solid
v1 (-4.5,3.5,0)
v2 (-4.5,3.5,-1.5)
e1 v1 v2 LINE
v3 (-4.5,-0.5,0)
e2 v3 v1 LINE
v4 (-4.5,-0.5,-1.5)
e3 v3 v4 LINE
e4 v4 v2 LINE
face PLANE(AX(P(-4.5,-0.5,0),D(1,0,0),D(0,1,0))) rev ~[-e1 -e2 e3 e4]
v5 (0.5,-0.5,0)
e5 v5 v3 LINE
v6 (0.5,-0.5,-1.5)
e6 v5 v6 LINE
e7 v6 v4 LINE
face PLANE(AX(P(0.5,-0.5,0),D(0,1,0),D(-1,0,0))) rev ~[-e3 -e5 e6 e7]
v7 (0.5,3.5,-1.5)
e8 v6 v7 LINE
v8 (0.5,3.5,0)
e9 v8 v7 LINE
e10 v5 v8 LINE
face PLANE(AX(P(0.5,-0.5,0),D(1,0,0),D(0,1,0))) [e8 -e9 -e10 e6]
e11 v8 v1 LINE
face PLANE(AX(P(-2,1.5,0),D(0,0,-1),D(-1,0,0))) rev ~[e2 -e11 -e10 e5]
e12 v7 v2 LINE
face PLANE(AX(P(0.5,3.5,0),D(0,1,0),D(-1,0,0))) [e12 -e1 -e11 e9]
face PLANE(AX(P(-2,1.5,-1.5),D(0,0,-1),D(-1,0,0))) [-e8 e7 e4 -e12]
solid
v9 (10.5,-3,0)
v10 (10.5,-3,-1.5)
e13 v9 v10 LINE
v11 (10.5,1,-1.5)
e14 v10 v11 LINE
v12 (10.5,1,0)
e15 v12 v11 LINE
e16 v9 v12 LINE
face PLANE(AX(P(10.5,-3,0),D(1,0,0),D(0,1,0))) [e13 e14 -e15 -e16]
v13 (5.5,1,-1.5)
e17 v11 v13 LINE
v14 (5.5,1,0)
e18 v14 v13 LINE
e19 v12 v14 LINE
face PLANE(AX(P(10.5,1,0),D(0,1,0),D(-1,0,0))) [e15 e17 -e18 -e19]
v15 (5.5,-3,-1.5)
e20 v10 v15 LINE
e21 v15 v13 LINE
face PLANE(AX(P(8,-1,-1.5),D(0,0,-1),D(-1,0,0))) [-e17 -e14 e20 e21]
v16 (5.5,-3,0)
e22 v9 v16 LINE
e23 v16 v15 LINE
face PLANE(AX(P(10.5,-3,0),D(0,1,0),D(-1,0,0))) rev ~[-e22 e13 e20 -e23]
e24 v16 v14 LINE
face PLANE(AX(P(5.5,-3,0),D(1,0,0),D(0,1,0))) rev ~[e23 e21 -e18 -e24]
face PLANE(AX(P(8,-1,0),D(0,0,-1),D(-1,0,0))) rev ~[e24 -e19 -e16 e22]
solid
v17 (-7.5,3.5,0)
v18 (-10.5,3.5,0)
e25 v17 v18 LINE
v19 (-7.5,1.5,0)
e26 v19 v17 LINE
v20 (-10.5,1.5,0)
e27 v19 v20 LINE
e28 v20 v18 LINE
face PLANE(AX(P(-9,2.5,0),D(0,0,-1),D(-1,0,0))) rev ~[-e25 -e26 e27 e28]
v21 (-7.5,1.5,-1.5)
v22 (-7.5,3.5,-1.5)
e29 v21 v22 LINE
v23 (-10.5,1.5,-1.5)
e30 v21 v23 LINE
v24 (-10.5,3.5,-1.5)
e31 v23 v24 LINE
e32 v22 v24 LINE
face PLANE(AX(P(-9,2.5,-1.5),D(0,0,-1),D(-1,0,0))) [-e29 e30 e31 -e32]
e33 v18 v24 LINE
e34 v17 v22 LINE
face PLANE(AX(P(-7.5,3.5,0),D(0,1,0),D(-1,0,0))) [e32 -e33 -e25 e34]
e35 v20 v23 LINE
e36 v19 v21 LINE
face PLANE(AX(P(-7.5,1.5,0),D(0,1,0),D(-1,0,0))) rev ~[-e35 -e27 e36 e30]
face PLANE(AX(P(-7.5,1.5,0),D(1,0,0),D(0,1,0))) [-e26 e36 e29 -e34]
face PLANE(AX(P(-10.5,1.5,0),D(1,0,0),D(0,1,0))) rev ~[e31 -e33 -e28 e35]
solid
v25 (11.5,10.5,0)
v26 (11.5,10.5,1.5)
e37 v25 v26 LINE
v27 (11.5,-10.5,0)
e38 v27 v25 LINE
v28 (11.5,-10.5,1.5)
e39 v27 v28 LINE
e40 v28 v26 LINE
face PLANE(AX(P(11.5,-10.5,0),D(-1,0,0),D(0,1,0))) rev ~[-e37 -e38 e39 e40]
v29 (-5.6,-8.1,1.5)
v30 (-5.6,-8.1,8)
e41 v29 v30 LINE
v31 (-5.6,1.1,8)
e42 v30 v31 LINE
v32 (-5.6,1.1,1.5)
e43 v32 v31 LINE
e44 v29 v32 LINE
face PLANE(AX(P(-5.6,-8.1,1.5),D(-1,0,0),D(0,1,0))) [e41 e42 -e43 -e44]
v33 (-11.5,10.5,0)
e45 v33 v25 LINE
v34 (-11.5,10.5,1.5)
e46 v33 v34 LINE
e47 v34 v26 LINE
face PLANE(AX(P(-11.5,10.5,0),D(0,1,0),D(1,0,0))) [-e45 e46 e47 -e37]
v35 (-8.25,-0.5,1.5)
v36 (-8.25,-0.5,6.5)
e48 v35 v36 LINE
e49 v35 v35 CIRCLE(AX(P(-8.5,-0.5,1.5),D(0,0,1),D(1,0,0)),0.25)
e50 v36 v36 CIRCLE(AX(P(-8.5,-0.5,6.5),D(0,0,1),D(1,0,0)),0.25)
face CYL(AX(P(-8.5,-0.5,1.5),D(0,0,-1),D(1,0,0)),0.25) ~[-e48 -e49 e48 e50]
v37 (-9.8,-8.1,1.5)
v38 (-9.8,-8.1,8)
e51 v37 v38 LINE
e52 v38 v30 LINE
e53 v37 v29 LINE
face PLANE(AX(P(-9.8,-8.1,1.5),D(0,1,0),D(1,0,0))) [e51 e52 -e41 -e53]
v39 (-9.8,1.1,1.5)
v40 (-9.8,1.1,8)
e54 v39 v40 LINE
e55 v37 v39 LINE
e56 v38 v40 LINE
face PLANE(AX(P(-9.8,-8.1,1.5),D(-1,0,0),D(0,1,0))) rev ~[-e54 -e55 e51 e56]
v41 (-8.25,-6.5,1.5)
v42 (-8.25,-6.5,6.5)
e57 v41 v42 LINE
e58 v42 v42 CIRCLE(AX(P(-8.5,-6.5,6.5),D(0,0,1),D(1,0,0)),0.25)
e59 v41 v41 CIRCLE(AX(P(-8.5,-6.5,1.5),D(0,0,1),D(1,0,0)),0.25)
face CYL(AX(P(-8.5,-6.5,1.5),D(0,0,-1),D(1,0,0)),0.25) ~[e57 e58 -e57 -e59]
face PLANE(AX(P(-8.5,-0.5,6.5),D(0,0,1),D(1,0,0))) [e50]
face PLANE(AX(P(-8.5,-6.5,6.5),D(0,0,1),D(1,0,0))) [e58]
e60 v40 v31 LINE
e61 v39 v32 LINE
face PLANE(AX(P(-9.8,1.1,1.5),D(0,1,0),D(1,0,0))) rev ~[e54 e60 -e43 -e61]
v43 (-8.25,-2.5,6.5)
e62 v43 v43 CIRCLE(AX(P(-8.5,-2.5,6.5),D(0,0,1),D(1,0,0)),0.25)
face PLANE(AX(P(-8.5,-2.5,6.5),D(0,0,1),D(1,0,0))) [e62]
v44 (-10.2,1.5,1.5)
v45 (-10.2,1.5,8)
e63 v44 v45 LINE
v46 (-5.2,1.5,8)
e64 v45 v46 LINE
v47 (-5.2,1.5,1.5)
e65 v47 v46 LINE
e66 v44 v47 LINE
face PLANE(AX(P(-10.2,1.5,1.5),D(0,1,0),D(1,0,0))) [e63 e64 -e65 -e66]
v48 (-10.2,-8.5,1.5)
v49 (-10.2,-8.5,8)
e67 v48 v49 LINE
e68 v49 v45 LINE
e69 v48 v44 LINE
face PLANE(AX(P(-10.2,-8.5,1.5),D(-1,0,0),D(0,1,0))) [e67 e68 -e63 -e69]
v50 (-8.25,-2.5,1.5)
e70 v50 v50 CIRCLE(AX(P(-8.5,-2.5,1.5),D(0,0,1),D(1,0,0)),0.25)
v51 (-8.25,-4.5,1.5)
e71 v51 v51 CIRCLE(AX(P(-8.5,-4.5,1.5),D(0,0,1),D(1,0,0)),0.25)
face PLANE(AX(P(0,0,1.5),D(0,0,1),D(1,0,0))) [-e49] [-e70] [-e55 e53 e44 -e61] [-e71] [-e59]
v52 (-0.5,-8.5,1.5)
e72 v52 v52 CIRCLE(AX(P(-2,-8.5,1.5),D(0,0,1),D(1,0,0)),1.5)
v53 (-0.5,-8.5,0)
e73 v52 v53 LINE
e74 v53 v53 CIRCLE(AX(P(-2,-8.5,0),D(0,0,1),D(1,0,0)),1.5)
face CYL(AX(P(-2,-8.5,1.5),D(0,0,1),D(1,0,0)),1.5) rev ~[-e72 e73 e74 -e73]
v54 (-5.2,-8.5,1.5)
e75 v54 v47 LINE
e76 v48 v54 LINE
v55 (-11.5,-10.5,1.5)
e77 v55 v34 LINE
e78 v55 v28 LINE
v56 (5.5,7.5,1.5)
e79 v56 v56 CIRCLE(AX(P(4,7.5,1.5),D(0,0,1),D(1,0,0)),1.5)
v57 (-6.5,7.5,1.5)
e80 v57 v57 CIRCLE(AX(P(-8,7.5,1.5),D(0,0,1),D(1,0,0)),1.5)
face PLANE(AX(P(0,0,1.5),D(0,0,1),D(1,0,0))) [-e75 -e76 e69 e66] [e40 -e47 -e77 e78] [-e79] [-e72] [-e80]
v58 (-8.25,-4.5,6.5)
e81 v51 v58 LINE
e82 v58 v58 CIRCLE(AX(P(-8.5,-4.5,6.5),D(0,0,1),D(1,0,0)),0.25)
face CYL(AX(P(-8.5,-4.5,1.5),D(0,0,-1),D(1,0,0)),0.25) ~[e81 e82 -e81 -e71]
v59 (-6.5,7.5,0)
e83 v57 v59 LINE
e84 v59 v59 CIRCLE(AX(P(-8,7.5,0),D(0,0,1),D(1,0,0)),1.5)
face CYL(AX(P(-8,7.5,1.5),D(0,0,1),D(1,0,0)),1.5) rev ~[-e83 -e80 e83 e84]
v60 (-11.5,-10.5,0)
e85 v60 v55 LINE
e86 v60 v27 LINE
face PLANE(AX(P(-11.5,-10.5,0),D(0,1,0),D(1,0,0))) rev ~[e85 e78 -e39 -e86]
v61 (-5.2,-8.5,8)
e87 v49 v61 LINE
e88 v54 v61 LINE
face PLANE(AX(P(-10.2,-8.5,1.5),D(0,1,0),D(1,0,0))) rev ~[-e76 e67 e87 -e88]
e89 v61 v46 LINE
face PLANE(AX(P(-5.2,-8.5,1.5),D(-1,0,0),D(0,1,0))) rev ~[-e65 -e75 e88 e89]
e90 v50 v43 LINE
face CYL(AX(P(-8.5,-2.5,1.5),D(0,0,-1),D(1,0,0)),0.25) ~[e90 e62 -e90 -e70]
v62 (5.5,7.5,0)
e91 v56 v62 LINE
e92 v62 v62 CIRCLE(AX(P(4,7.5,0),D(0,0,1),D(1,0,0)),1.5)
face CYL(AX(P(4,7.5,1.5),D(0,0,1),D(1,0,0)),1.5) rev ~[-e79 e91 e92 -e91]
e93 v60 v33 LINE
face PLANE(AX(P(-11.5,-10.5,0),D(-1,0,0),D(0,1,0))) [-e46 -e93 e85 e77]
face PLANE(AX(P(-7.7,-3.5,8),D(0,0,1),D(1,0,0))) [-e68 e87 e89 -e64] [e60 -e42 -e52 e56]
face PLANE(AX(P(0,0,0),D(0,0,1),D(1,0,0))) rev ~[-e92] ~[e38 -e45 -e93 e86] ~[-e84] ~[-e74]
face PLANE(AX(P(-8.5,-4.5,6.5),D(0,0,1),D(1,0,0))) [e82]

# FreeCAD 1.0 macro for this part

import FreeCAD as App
import Part
import Sketcher
from FreeCAD import Vector

doc = App.newDocument("Part")
params = doc.addObject("Spreadsheet::Sheet", "Params")
for row, (alias, value) in enumerate([
    ("sketch1_width", "23 mm"),
    ("sketch1_height", "21 mm"),
    ("pad1_length", "1.5 mm"),
    ("sketch2_diameter", "3 mm"),
    ("sketch3_diameter", "0.5 mm"),
    ("pad2_length", "5 mm"),
    ("sketch4_diameter", "0.5 mm"),
    ("pad3_length", "5 mm"),
    ("sketch5_diameter", "0.5 mm"),
    ("pad4_length", "5 mm"),
    ("sketch6_diameter", "0.5 mm"),
    ("pad5_length", "5 mm"),
    ("sketch7_width", "5 mm"),
    ("sketch7_height", "10 mm"),
    ("sketch7_width2", "4.2 mm"),
    ("sketch7_height2", "9.2 mm"),
    ("pad6_length", "6.5 mm"),
    ("sketch8_width", "5 mm"),
    ("sketch8_height", "4 mm"),
    ("pad7_length", "1.5 mm"),
    ("sketch9_width", "5 mm"),
    ("sketch9_height", "4 mm"),
    ("pad8_length", "1.5 mm"),
    ("sketch10_width", "3 mm"),
    ("sketch10_height", "2 mm"),
    ("pad9_length", "1.5 mm"),
], start=1):
    params.set(f"A{row}", alias)
    params.set(f"B{row}", "=" + value)
    params.setAlias(f"B{row}", alias)

body = doc.addObject("PartDesign::Body", "Body")

# Sketch on XY plane
sketch1 = body.newObject("Sketcher::SketchObject", "Sketch")
sketch1.AttachmentSupport = (doc.getObject("XY_Plane"), [""])
sketch1.MapMode = "FlatFace"
sketch1.addGeometry([
    Part.LineSegment(Vector(-11.5, 10.5, 0), Vector(-11.5, -10.5, 0)),
    Part.LineSegment(Vector(-11.5, -10.5, 0), Vector(11.5, -10.5, 0)),
    Part.LineSegment(Vector(11.5, -10.5, 0), Vector(11.5, 10.5, 0)),
    Part.LineSegment(Vector(11.5, 10.5, 0), Vector(-11.5, 10.5, 0)),
], False)
sketch1.addConstraint([
    Sketcher.Constraint("Coincident", 0, 2, 1, 1),
    Sketcher.Constraint("Coincident", 1, 2, 2, 1),
    Sketcher.Constraint("Coincident", 2, 2, 3, 1),
    Sketcher.Constraint("Coincident", 3, 2, 0, 1),
    Sketcher.Constraint("Vertical", 0),
    Sketcher.Constraint("Horizontal", 1),
    Sketcher.Constraint("Vertical", 2),
    Sketcher.Constraint("Horizontal", 3),
    Sketcher.Constraint("Symmetric", 0, 2, 2, 2, -1, 1),
    Sketcher.Constraint("DistanceX", 1, 1, 1, 2, 23.0),
    Sketcher.Constraint("DistanceY", 0, 2, 0, 1, 21.0),
])
sketch1.setExpression("Constraints[9]", "Params.sketch1_width")
sketch1.setExpression("Constraints[10]", "Params.sketch1_height")
pad1 = body.newObject("PartDesign::Pad", "Pad")
pad1.Profile = sketch1
pad1.setExpression("Length", "Params.pad1_length")

# Sketch on XY plane
sketch2 = body.newObject("Sketcher::SketchObject", "Sketch001")
sketch2.AttachmentSupport = (doc.getObject("XY_Plane"), [""])
sketch2.MapMode = "FlatFace"
sketch2.AttachmentOffset = App.Placement(Vector(0, 0, 1.5), App.Rotation())
sketch2.addGeometry([
    Part.Circle(Vector(-8, 7.5, 0), Vector(0, 0, 1), 1.5),
    Part.Circle(Vector(4, 7.5, 0), Vector(0, 0, 1), 1.5),
    Part.Circle(Vector(-2, -8.5, 0), Vector(0, 0, 1), 1.5),
], False)
sketch2.addConstraint([
    Sketcher.Constraint("Equal", 0, 1),
    Sketcher.Constraint("Equal", 1, 2),
    Sketcher.Constraint("Horizontal", 0, 3, 1, 3),
    Sketcher.Constraint("Diameter", 0, 3.0),
    Sketcher.Constraint("DistanceX", 0, 3, -1, 1, 8.0),
    Sketcher.Constraint("DistanceX", -1, 1, 1, 3, 4.0),
    Sketcher.Constraint("DistanceX", 2, 3, -1, 1, 2.0),
    Sketcher.Constraint("DistanceY", 2, 3, 0, 3, 16.0),
    Sketcher.Constraint("DistanceY", -1, 1, 0, 3, 7.5),
])
sketch2.setExpression("Constraints[3]", "Params.sketch2_diameter")
pocket1 = body.newObject("PartDesign::Pocket", "Pocket")
pocket1.Profile = sketch2
pocket1.Type = "ThroughAll"
body2 = doc.addObject("PartDesign::Body", "Body001")

# Sketch on XY plane
sketch3 = body2.newObject("Sketcher::SketchObject", "Sketch002")
sketch3.AttachmentSupport = (doc.getObject("XY_Plane001"), [""])
sketch3.MapMode = "FlatFace"
sketch3.AttachmentOffset = App.Placement(Vector(0, 0, 1.5), App.Rotation())
sketch3.addGeometry(Part.Circle(Vector(-8.5, -0.5, 0), Vector(0, 0, 1), 0.25), False)
sketch3.addConstraint([
    Sketcher.Constraint("Diameter", 0, 0.5),
    Sketcher.Constraint("DistanceX", 0, 3, -1, 1, 8.5),
    Sketcher.Constraint("DistanceY", 0, 3, -1, 1, 0.5),
])
sketch3.setExpression("Constraints[0]", "Params.sketch3_diameter")
pad2 = body2.newObject("PartDesign::Pad", "Pad001")
pad2.Profile = sketch3
pad2.setExpression("Length", "Params.pad2_length")
doc.recompute()

boolean = body2.newObject("PartDesign::Boolean", "Boolean")
boolean.Type = "Fuse"
boolean.addObjects([body])
body3 = doc.addObject("PartDesign::Body", "Body002")

# Sketch on XY plane
sketch4 = body3.newObject("Sketcher::SketchObject", "Sketch003")
sketch4.AttachmentSupport = (doc.getObject("XY_Plane002"), [""])
sketch4.MapMode = "FlatFace"
sketch4.AttachmentOffset = App.Placement(Vector(0, 0, 1.5), App.Rotation())
sketch4.addGeometry(Part.Circle(Vector(-8.5, -2.5, 0), Vector(0, 0, 1), 0.25), False)
sketch4.addConstraint([
    Sketcher.Constraint("Diameter", 0, 0.5),
    Sketcher.Constraint("DistanceX", 0, 3, -1, 1, 8.5),
    Sketcher.Constraint("DistanceY", 0, 3, -1, 1, 2.5),
])
sketch4.setExpression("Constraints[0]", "Params.sketch4_diameter")
pad3 = body3.newObject("PartDesign::Pad", "Pad002")
pad3.Profile = sketch4
pad3.setExpression("Length", "Params.pad3_length")
body4 = doc.addObject("PartDesign::Body", "Body003")

# Sketch on XY plane
sketch5 = body4.newObject("Sketcher::SketchObject", "Sketch004")
sketch5.AttachmentSupport = (doc.getObject("XY_Plane003"), [""])
sketch5.MapMode = "FlatFace"
sketch5.AttachmentOffset = App.Placement(Vector(0, 0, 1.5), App.Rotation())
sketch5.addGeometry(Part.Circle(Vector(-8.5, -4.5, 0), Vector(0, 0, 1), 0.25), False)
sketch5.addConstraint([
    Sketcher.Constraint("Diameter", 0, 0.5),
    Sketcher.Constraint("DistanceX", 0, 3, -1, 1, 8.5),
    Sketcher.Constraint("DistanceY", 0, 3, -1, 1, 4.5),
])
sketch5.setExpression("Constraints[0]", "Params.sketch5_diameter")
pad4 = body4.newObject("PartDesign::Pad", "Pad003")
pad4.Profile = sketch5
pad4.setExpression("Length", "Params.pad4_length")
body5 = doc.addObject("PartDesign::Body", "Body004")

# Sketch on XY plane
sketch6 = body5.newObject("Sketcher::SketchObject", "Sketch005")
sketch6.AttachmentSupport = (doc.getObject("XY_Plane004"), [""])
sketch6.MapMode = "FlatFace"
sketch6.AttachmentOffset = App.Placement(Vector(0, 0, 1.5), App.Rotation())
sketch6.addGeometry(Part.Circle(Vector(-8.5, -6.5, 0), Vector(0, 0, 1), 0.25), False)
sketch6.addConstraint([
    Sketcher.Constraint("Diameter", 0, 0.5),
    Sketcher.Constraint("DistanceX", 0, 3, -1, 1, 8.5),
    Sketcher.Constraint("DistanceY", 0, 3, -1, 1, 6.5),
])
sketch6.setExpression("Constraints[0]", "Params.sketch6_diameter")
pad5 = body5.newObject("PartDesign::Pad", "Pad004")
pad5.Profile = sketch6
pad5.setExpression("Length", "Params.pad5_length")
doc.recompute()

boolean2 = body2.newObject("PartDesign::Boolean", "Boolean001")
boolean2.Type = "Fuse"
boolean2.addObjects([body3])
doc.recompute()

boolean3 = body2.newObject("PartDesign::Boolean", "Boolean002")
boolean3.Type = "Fuse"
boolean3.addObjects([body4])
doc.recompute()

boolean4 = body2.newObject("PartDesign::Boolean", "Boolean003")
boolean4.Type = "Fuse"
boolean4.addObjects([body5])

# Sketch on XY plane
sketch7 = body2.newObject("Sketcher::SketchObject", "Sketch006")
sketch7.AttachmentSupport = (doc.getObject("XY_Plane001"), [""])
sketch7.MapMode = "FlatFace"
sketch7.AttachmentOffset = App.Placement(Vector(0, 0, 1.5), App.Rotation())
sketch7.addGeometry([
    Part.LineSegment(Vector(-10.2, 1.5, 0), Vector(-10.2, -8.5, 0)),  # 0
    Part.LineSegment(Vector(-10.2, -8.5, 0), Vector(-5.2, -8.5, 0)),  # 1
    Part.LineSegment(Vector(-5.2, -8.5, 0), Vector(-5.2, 1.5, 0)),  # 2
    Part.LineSegment(Vector(-5.2, 1.5, 0), Vector(-10.2, 1.5, 0)),  # 3
    Part.LineSegment(Vector(-5.6, -8.1, 0), Vector(-9.8, -8.1, 0)),  # 4
    Part.LineSegment(Vector(-9.8, -8.1, 0), Vector(-9.8, 1.1, 0)),  # 5
    Part.LineSegment(Vector(-9.8, 1.1, 0), Vector(-5.6, 1.1, 0)),  # 6
    Part.LineSegment(Vector(-5.6, 1.1, 0), Vector(-5.6, -8.1, 0)),  # 7
], False)
sketch7.addConstraint([
    Sketcher.Constraint("Coincident", 0, 2, 1, 1),
    Sketcher.Constraint("Coincident", 1, 2, 2, 1),
    Sketcher.Constraint("Coincident", 2, 2, 3, 1),
    Sketcher.Constraint("Coincident", 3, 2, 0, 1),
    Sketcher.Constraint("Coincident", 4, 2, 5, 1),
    Sketcher.Constraint("Coincident", 5, 2, 6, 1),
    Sketcher.Constraint("Coincident", 6, 2, 7, 1),
    Sketcher.Constraint("Coincident", 7, 2, 4, 1),
    Sketcher.Constraint("Vertical", 0),
    Sketcher.Constraint("Horizontal", 1),
    Sketcher.Constraint("Vertical", 2),
    Sketcher.Constraint("Horizontal", 3),
    Sketcher.Constraint("Horizontal", 4),
    Sketcher.Constraint("Vertical", 5),
    Sketcher.Constraint("Horizontal", 6),
    Sketcher.Constraint("Vertical", 7),
    Sketcher.Constraint("DistanceX", 1, 1, 1, 2, 5.0),
    Sketcher.Constraint("DistanceY", 0, 2, 0, 1, 10.0),
    Sketcher.Constraint("DistanceX", 4, 2, 4, 1, 4.2),
    Sketcher.Constraint("DistanceY", 5, 1, 5, 2, 9.2),
    Sketcher.Constraint("DistanceX", 0, 2, -1, 1, 10.2),
    Sketcher.Constraint("DistanceY", 0, 2, -1, 1, 8.5),
    Sketcher.Constraint("DistanceX", 4, 2, -1, 1, 9.8),
    Sketcher.Constraint("DistanceY", 4, 2, -1, 1, 8.1),
])
sketch7.setExpression("Constraints[16]", "Params.sketch7_width")
sketch7.setExpression("Constraints[17]", "Params.sketch7_height")
sketch7.setExpression("Constraints[18]", "Params.sketch7_width2")
sketch7.setExpression("Constraints[19]", "Params.sketch7_height2")
pad6 = body2.newObject("PartDesign::Pad", "Pad005")
pad6.Profile = sketch7
pad6.setExpression("Length", "Params.pad6_length")
body6 = doc.addObject("PartDesign::Body", "Body005")

# Sketch on XY plane
sketch8 = body6.newObject("Sketcher::SketchObject", "Sketch007")
sketch8.AttachmentSupport = (doc.getObject("XY_Plane005"), [""])
sketch8.MapMode = "FlatFace"
sketch8.addGeometry([
    Part.LineSegment(Vector(10.5, 1, 0), Vector(10.5, -3, 0)),
    Part.LineSegment(Vector(10.5, -3, 0), Vector(5.5, -3, 0)),
    Part.LineSegment(Vector(5.5, -3, 0), Vector(5.5, 1, 0)),
    Part.LineSegment(Vector(5.5, 1, 0), Vector(10.5, 1, 0)),
], False)
sketch8.addConstraint([
    Sketcher.Constraint("Coincident", 0, 2, 1, 1),
    Sketcher.Constraint("Coincident", 1, 2, 2, 1),
    Sketcher.Constraint("Coincident", 2, 2, 3, 1),
    Sketcher.Constraint("Coincident", 3, 2, 0, 1),
    Sketcher.Constraint("Vertical", 0),
    Sketcher.Constraint("Horizontal", 1),
    Sketcher.Constraint("Vertical", 2),
    Sketcher.Constraint("Horizontal", 3),
    Sketcher.Constraint("DistanceX", 1, 2, 1, 1, 5.0),
    Sketcher.Constraint("DistanceY", 0, 2, 0, 1, 4.0),
    Sketcher.Constraint("DistanceY", 0, 2, -1, 1, 3.0),
    Sketcher.Constraint("DistanceX", -1, 1, 0, 2, 10.5),
])
sketch8.setExpression("Constraints[8]", "Params.sketch8_width")
sketch8.setExpression("Constraints[9]", "Params.sketch8_height")
pad7 = body6.newObject("PartDesign::Pad", "Pad006")
pad7.Profile = sketch8
pad7.setExpression("Length", "Params.pad7_length")
pad7.Reversed = True
body7 = doc.addObject("PartDesign::Body", "Body006")

# Sketch on XY plane
sketch9 = body7.newObject("Sketcher::SketchObject", "Sketch008")
sketch9.AttachmentSupport = (doc.getObject("XY_Plane006"), [""])
sketch9.MapMode = "FlatFace"
sketch9.addGeometry([
    Part.LineSegment(Vector(0.5, 3.5, 0), Vector(0.5, -0.5, 0)),
    Part.LineSegment(Vector(0.5, -0.5, 0), Vector(-4.5, -0.5, 0)),
    Part.LineSegment(Vector(-4.5, -0.5, 0), Vector(-4.5, 3.5, 0)),
    Part.LineSegment(Vector(-4.5, 3.5, 0), Vector(0.5, 3.5, 0)),
], False)
sketch9.addConstraint([
    Sketcher.Constraint("Coincident", 0, 2, 1, 1),
    Sketcher.Constraint("Coincident", 1, 2, 2, 1),
    Sketcher.Constraint("Coincident", 2, 2, 3, 1),
    Sketcher.Constraint("Coincident", 3, 2, 0, 1),
    Sketcher.Constraint("Vertical", 0),
    Sketcher.Constraint("Horizontal", 1),
    Sketcher.Constraint("Vertical", 2),
    Sketcher.Constraint("Horizontal", 3),
    Sketcher.Constraint("DistanceX", 1, 2, 1, 1, 5.0),
    Sketcher.Constraint("DistanceY", 0, 2, 0, 1, 4.0),
    Sketcher.Constraint("DistanceX", -1, 1, 0, 2, 0.5),
    Sketcher.Constraint("DistanceY", 0, 2, -1, 1, 0.5),
])
sketch9.setExpression("Constraints[8]", "Params.sketch9_width")
sketch9.setExpression("Constraints[9]", "Params.sketch9_height")
pad8 = body7.newObject("PartDesign::Pad", "Pad007")
pad8.Profile = sketch9
pad8.setExpression("Length", "Params.pad8_length")
pad8.Reversed = True
body8 = doc.addObject("PartDesign::Body", "Body007")

# Sketch on XY plane
sketch10 = body8.newObject("Sketcher::SketchObject", "Sketch009")
sketch10.AttachmentSupport = (doc.getObject("XY_Plane007"), [""])
sketch10.MapMode = "FlatFace"
sketch10.addGeometry([
    Part.LineSegment(Vector(-7.5, 3.5, 0), Vector(-7.5, 1.5, 0)),
    Part.LineSegment(Vector(-7.5, 1.5, 0), Vector(-10.5, 1.5, 0)),
    Part.LineSegment(Vector(-10.5, 1.5, 0), Vector(-10.5, 3.5, 0)),
    Part.LineSegment(Vector(-10.5, 3.5, 0), Vector(-7.5, 3.5, 0)),
], False)
sketch10.addConstraint([
    Sketcher.Constraint("Coincident", 0, 2, 1, 1),
    Sketcher.Constraint("Coincident", 1, 2, 2, 1),
    Sketcher.Constraint("Coincident", 2, 2, 3, 1),
    Sketcher.Constraint("Coincident", 3, 2, 0, 1),
    Sketcher.Constraint("Vertical", 0),
    Sketcher.Constraint("Horizontal", 1),
    Sketcher.Constraint("Vertical", 2),
    Sketcher.Constraint("Horizontal", 3),
    Sketcher.Constraint("DistanceX", 1, 2, 1, 1, 3.0),
    Sketcher.Constraint("DistanceY", 0, 2, 0, 1, 2.0),
    Sketcher.Constraint("DistanceX", 0, 2, -1, 1, 7.5),
    Sketcher.Constraint("DistanceY", -1, 1, 0, 2, 1.5),
])
sketch10.setExpression("Constraints[8]", "Params.sketch10_width")
sketch10.setExpression("Constraints[9]", "Params.sketch10_height")
pad9 = body8.newObject("PartDesign::Pad", "Pad008")
pad9.Profile = sketch10
pad9.setExpression("Length", "Params.pad9_length")
pad9.Reversed = True

doc.recompute()
